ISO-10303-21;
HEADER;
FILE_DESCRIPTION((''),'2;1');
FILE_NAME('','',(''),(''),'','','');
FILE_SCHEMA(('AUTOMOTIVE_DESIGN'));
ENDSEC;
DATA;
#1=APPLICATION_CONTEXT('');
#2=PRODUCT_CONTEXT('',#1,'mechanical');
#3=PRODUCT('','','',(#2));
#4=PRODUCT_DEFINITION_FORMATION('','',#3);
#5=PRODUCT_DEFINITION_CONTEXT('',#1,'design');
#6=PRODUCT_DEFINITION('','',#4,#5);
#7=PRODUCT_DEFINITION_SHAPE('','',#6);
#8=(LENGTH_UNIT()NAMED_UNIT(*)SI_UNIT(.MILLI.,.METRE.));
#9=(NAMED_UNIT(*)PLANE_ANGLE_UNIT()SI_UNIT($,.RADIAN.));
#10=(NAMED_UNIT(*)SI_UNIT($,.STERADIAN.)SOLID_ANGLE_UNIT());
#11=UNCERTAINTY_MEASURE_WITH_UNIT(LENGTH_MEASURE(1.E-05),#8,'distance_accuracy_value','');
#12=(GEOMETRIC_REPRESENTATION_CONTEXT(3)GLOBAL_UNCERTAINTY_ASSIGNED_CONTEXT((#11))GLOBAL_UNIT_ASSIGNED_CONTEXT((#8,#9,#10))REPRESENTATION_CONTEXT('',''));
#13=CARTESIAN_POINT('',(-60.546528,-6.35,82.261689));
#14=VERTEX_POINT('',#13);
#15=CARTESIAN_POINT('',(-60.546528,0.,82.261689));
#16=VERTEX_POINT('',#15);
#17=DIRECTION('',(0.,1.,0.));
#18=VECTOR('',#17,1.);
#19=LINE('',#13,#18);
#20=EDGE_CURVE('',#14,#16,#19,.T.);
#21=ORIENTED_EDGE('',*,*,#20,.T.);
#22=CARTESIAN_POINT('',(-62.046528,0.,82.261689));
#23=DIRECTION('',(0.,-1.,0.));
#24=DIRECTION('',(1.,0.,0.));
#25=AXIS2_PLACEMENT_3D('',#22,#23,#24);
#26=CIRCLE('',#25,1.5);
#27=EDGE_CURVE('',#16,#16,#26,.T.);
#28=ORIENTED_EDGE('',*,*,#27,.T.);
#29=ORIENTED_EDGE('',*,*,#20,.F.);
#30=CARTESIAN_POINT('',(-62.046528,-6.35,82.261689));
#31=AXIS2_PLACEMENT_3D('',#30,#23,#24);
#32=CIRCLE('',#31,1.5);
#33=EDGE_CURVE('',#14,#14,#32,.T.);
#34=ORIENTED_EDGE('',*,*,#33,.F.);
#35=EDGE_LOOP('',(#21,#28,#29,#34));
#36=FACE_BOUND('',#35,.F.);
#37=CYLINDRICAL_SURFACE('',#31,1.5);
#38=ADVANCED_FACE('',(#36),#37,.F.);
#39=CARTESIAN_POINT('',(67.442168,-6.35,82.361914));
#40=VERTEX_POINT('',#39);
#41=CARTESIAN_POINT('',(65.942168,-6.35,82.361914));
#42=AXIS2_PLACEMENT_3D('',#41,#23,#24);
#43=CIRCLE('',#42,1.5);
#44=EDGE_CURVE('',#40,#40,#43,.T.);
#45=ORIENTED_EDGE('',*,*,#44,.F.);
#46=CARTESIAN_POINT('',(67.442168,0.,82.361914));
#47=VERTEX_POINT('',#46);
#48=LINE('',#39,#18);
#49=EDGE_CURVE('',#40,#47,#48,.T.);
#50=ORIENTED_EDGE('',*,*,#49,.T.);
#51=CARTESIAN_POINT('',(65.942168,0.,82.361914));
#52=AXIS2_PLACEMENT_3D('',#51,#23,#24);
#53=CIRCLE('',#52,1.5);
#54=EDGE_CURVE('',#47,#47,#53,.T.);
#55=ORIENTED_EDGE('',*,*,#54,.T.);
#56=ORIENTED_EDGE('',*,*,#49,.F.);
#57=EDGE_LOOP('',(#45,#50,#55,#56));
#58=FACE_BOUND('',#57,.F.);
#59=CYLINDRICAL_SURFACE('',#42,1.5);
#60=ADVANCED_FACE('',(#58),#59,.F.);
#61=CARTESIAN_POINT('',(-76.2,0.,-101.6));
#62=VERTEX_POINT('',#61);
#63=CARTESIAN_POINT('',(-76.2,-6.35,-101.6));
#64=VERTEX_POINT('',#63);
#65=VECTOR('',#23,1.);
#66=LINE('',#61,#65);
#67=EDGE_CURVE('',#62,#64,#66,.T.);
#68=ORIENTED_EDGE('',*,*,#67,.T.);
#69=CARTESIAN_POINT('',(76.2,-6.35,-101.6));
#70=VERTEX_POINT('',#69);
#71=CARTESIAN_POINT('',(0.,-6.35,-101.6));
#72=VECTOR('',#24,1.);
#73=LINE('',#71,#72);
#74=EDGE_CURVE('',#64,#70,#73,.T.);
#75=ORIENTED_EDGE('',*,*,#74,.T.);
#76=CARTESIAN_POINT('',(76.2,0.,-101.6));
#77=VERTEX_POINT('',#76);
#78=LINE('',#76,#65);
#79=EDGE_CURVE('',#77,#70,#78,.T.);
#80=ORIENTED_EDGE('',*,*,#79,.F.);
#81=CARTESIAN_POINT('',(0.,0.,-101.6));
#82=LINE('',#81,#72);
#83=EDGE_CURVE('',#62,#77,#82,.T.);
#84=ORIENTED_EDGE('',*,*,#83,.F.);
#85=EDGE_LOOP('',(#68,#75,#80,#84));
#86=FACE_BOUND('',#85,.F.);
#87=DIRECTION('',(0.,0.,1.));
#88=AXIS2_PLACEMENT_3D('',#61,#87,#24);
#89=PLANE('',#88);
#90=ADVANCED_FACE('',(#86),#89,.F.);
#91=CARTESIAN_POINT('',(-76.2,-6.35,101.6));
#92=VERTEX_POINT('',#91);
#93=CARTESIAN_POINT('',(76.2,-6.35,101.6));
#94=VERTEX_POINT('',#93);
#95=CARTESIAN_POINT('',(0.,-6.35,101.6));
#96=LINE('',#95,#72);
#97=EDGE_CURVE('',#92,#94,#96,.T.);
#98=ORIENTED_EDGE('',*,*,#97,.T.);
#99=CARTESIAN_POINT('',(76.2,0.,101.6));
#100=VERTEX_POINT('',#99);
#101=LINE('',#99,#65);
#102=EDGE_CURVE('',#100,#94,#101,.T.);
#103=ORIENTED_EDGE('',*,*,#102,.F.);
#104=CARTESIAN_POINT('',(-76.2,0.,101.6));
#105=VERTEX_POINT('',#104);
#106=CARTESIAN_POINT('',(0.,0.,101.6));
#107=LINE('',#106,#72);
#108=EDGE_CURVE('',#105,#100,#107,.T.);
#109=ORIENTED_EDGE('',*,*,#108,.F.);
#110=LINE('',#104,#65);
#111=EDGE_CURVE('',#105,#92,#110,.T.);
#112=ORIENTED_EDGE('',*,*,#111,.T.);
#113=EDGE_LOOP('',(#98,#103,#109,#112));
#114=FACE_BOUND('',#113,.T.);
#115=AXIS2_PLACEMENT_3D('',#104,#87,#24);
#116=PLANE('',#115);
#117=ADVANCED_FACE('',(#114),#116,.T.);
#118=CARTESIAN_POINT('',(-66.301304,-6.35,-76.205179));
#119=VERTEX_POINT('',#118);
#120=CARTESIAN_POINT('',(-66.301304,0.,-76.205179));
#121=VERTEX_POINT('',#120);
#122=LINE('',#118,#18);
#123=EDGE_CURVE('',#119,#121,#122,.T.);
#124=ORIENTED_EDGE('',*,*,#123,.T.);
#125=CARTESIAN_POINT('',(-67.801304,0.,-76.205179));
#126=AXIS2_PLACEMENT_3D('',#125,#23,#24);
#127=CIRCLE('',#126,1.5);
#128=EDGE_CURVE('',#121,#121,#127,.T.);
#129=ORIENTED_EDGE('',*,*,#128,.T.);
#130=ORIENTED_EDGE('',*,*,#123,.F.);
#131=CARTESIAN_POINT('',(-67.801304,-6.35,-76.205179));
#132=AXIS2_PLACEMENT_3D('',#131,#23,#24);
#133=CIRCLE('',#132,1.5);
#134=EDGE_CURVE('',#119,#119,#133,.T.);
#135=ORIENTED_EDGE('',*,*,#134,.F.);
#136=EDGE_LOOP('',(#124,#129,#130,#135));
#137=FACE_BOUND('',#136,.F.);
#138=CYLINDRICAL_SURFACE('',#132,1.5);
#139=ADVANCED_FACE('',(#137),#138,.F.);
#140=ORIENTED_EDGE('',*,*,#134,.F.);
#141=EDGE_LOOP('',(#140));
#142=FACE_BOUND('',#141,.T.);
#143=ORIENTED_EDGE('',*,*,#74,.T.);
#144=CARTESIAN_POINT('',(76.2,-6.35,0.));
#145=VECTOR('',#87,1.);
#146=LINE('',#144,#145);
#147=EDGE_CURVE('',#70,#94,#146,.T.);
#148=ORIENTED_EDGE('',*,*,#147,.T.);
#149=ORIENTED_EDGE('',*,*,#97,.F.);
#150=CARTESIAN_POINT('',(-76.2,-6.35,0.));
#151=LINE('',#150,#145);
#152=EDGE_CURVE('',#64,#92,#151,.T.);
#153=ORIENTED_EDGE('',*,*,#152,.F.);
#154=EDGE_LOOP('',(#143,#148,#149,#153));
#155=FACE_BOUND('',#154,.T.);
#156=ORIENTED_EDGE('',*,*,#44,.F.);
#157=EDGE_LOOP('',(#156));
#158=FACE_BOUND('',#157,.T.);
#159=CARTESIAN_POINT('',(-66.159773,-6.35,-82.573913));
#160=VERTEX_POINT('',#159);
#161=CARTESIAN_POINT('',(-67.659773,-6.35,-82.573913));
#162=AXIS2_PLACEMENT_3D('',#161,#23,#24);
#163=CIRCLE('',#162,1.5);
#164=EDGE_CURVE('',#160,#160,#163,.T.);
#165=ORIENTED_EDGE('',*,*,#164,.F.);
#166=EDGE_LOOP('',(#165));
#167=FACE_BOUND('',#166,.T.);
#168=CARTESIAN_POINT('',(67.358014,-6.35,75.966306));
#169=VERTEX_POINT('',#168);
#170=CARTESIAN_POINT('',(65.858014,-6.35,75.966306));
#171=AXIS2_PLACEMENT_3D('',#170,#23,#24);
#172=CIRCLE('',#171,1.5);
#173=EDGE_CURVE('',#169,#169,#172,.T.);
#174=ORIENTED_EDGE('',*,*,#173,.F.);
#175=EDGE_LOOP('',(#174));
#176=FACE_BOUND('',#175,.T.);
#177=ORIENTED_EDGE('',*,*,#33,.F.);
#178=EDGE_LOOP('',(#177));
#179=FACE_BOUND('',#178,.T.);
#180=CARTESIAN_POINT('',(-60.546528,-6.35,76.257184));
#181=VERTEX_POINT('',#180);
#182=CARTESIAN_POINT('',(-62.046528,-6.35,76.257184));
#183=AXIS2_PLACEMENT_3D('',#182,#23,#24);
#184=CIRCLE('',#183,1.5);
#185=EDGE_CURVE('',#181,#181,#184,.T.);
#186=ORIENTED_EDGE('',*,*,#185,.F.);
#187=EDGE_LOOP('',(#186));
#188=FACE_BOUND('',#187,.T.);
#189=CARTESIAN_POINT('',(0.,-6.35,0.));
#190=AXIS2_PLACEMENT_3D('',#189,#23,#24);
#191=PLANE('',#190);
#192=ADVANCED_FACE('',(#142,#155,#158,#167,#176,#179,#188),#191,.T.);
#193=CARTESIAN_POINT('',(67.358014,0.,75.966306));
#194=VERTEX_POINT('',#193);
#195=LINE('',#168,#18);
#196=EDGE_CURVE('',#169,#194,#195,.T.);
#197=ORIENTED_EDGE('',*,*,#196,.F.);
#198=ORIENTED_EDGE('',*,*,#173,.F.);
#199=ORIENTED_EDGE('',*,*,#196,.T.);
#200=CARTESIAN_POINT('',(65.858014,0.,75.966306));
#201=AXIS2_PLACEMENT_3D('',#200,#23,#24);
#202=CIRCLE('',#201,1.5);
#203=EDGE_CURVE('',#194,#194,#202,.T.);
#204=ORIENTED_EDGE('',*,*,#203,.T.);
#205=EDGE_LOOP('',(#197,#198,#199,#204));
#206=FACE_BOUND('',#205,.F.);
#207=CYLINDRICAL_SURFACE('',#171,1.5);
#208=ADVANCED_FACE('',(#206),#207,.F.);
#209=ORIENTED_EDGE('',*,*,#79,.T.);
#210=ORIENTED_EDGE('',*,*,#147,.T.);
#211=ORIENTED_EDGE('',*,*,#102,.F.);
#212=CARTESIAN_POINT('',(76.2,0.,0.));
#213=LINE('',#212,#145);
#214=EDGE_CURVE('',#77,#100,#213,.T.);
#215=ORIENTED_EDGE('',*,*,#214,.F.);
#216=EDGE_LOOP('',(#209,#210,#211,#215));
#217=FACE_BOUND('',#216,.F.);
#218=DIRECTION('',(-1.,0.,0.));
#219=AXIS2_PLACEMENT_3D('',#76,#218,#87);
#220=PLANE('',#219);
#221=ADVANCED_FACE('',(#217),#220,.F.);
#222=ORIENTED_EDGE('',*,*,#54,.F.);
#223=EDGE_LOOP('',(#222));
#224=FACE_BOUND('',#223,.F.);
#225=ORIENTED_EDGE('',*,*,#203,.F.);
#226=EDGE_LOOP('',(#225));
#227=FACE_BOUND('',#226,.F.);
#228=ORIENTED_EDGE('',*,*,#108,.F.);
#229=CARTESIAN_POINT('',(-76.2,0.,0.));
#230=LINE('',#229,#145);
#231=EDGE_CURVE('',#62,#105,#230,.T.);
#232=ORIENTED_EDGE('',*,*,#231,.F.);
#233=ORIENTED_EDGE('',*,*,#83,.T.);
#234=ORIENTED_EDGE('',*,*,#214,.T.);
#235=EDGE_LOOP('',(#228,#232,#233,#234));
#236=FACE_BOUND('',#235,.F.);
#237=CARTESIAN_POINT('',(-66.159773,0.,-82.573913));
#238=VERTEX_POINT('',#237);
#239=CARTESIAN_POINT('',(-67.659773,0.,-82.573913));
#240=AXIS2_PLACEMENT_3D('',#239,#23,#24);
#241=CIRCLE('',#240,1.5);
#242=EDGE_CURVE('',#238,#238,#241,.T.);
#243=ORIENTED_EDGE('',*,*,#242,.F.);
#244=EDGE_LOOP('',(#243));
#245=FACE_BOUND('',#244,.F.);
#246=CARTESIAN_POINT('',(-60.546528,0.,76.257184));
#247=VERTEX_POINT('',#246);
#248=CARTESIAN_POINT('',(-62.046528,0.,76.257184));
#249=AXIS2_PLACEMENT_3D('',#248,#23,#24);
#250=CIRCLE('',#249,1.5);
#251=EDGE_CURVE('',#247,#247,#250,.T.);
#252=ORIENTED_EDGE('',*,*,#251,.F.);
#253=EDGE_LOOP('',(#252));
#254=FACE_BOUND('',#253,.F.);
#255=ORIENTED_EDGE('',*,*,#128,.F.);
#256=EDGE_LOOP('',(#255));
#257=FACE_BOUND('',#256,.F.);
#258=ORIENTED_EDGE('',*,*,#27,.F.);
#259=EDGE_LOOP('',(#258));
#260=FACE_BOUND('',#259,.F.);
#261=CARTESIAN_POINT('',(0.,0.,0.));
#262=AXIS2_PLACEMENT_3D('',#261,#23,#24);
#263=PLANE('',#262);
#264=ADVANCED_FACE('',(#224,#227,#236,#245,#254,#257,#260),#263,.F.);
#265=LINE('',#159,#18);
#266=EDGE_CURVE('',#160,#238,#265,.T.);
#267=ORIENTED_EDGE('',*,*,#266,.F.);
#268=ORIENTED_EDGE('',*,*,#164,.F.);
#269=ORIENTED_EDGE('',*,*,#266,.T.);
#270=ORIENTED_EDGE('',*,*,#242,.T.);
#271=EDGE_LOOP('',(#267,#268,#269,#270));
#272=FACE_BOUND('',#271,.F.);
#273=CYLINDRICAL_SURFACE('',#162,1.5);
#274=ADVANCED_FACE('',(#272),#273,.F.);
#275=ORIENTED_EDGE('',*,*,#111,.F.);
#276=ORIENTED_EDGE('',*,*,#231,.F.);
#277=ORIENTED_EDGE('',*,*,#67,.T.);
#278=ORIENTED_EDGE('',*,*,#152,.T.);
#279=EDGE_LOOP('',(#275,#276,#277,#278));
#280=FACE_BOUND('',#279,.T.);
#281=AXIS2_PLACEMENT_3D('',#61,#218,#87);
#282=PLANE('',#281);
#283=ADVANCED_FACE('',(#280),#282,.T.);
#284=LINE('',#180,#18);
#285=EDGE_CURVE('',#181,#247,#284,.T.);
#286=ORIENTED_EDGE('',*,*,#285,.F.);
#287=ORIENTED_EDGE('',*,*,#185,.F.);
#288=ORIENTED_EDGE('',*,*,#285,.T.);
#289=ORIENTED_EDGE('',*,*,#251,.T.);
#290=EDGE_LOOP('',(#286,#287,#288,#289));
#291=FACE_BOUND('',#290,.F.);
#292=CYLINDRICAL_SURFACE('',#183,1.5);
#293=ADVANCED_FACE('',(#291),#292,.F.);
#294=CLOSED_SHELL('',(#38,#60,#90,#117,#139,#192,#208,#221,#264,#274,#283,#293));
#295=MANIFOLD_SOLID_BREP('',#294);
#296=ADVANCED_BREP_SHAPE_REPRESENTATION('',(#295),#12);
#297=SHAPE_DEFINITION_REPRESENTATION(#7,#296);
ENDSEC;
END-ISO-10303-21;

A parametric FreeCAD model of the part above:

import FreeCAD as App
import Part
import Sketcher

V = App.Vector
Q = App.Units.Quantity

doc = App.newDocument("Part")
body = doc.addObject("PartDesign::Body", "Body")

# Sketch on XZ plane
sketch1 = body.newObject("Sketcher::SketchObject", "Sketch")
sketch1.AttachmentSupport = (doc.getObject("XZ_Plane"), [""])
sketch1.MapMode = "FlatFace"
sketch1.addGeometry([
    Part.LineSegment(V(-76.2, 101.6, 0), V(-76.2, -101.6, 0)),
    Part.LineSegment(V(-76.2, -101.6, 0), V(76.2, -101.6, 0)),
    Part.LineSegment(V(76.2, -101.6, 0), V(76.2, 101.6, 0)),
    Part.LineSegment(V(76.2, 101.6, 0), V(-76.2, 101.6, 0)),
], False)
sketch1.addConstraint([
    Sketcher.Constraint("Coincident", 0, 2, 1, 1),
    Sketcher.Constraint("Coincident", 1, 2, 2, 1),
    Sketcher.Constraint("Coincident", 2, 2, 3, 1),
    Sketcher.Constraint("Coincident", 3, 2, 0, 1),
    Sketcher.Constraint("Vertical", 0),
    Sketcher.Constraint("Horizontal", 1),
    Sketcher.Constraint("Vertical", 2),
    Sketcher.Constraint("Horizontal", 3),
    Sketcher.Constraint("Symmetric", 0, 2, 2, 2, -1, 1),
    Sketcher.Constraint("DistanceX", 1, 1, 1, 2, Q("6 in")),
    Sketcher.Constraint("DistanceY", 0, 2, 0, 1, Q("8 in")),
])
pad1 = body.newObject("PartDesign::Pad", "Pad")
pad1.Profile = sketch1
pad1.Length = Q("0.25 in")

# Sketch on XZ plane
sketch2 = body.newObject("Sketcher::SketchObject", "Sketch001")
sketch2.AttachmentSupport = (doc.getObject("XZ_Plane"), [""])
sketch2.MapMode = "FlatFace"
sketch2.AttachmentOffset = App.Placement(V(0, 0, 0.25 * 25.4), App.Rotation())
sketch2.addGeometry(Part.Circle(V(-62.046528, 82.261689, 0), V(0, 0, 1), 1.5), False)
sketch2.addConstraint([
    Sketcher.Constraint("Diameter", 0, Q("3 mm")),
    Sketcher.Constraint("DistanceX", 0, 3, -1, 1, Q("62.046528 mm")),
    Sketcher.Constraint("DistanceY", -1, 1, 0, 3, Q("82.261689 mm")),
])
pocket1 = body.newObject("PartDesign::Pocket", "Pocket")
pocket1.Profile = sketch2
pocket1.Length = Q("0.25 in")

# Sketch on XZ plane
sketch3 = body.newObject("Sketcher::SketchObject", "Sketch002")
sketch3.AttachmentSupport = (doc.getObject("XZ_Plane"), [""])
sketch3.MapMode = "FlatFace"
sketch3.AttachmentOffset = App.Placement(V(0, 0, 0.25 * 25.4), App.Rotation())
sketch3.addGeometry(Part.Circle(V(-62.046528, 76.257184, 0), V(0, 0, 1), 1.5), False)
sketch3.addConstraint([
    Sketcher.Constraint("Diameter", 0, Q("3 mm")),
    Sketcher.Constraint("DistanceX", 0, 3, -1, 1, Q("62.046528 mm")),
    Sketcher.Constraint("DistanceY", -1, 1, 0, 3, Q("76.257184 mm")),
])
pocket2 = body.newObject("PartDesign::Pocket", "Pocket001")
pocket2.Profile = sketch3
pocket2.Length = Q("0.25 in")

# Sketch on XZ plane
sketch4 = body.newObject("Sketcher::SketchObject", "Sketch003")
sketch4.AttachmentSupport = (doc.getObject("XZ_Plane"), [""])
sketch4.MapMode = "FlatFace"
sketch4.AttachmentOffset = App.Placement(V(0, 0, 0.25 * 25.4), App.Rotation())
sketch4.addGeometry([
    Part.Circle(V(65.942168, 82.361914, 0), V(0, 0, 1), 1.5),
    Part.Circle(V(65.858014, 75.966306, 0), V(0, 0, 1), 1.5),
], False)
sketch4.addConstraint([
    Sketcher.Constraint("Equal", 0, 1),
    Sketcher.Constraint("Diameter", 0, Q("3 mm")),
    Sketcher.Constraint("DistanceX", -1, 1, 0, 3, Q("65.942168 mm")),
    Sketcher.Constraint("DistanceY", -1, 1, 0, 3, Q("82.361914 mm")),
    Sketcher.Constraint("DistanceX", -1, 1, 1, 3, Q("65.858014 mm")),
    Sketcher.Constraint("DistanceY", -1, 1, 1, 3, Q("75.966306 mm")),
])
pocket3 = body.newObject("PartDesign::Pocket", "Pocket002")
pocket3.Profile = sketch4
pocket3.Length = Q("0.25 in")

# Sketch on XZ plane
sketch5 = body.newObject("Sketcher::SketchObject", "Sketch004")
sketch5.AttachmentSupport = (doc.getObject("XZ_Plane"), [""])
sketch5.MapMode = "FlatFace"
sketch5.AttachmentOffset = App.Placement(V(0, 0, 0.25 * 25.4), App.Rotation())
sketch5.addGeometry([
    Part.Circle(V(-67.659773, -82.573913, 0), V(0, 0, 1), 1.5),
    Part.Circle(V(-67.801304, -76.205179, 0), V(0, 0, 1), 1.5),
], False)
sketch5.addConstraint([
    Sketcher.Constraint("Equal", 0, 1),
    Sketcher.Constraint("Diameter", 0, Q("3 mm")),
    Sketcher.Constraint("DistanceY", 1, 3, -1, 1, Q("76.205179 mm")),
    Sketcher.Constraint("DistanceX", 1, 3, 0, 3, Q("0.141531 mm")),
    Sketcher.Constraint("DistanceX", 0, 3, -1, 1, Q("67.659773 mm")),
    Sketcher.Constraint("DistanceY", 0, 3, -1, 1, Q("82.573913 mm")),
])
pocket4 = body.newObject("PartDesign::Pocket", "Pocket003")
pocket4.Profile = sketch5
pocket4.Length = Q("0.25 in")

doc.recompute()
